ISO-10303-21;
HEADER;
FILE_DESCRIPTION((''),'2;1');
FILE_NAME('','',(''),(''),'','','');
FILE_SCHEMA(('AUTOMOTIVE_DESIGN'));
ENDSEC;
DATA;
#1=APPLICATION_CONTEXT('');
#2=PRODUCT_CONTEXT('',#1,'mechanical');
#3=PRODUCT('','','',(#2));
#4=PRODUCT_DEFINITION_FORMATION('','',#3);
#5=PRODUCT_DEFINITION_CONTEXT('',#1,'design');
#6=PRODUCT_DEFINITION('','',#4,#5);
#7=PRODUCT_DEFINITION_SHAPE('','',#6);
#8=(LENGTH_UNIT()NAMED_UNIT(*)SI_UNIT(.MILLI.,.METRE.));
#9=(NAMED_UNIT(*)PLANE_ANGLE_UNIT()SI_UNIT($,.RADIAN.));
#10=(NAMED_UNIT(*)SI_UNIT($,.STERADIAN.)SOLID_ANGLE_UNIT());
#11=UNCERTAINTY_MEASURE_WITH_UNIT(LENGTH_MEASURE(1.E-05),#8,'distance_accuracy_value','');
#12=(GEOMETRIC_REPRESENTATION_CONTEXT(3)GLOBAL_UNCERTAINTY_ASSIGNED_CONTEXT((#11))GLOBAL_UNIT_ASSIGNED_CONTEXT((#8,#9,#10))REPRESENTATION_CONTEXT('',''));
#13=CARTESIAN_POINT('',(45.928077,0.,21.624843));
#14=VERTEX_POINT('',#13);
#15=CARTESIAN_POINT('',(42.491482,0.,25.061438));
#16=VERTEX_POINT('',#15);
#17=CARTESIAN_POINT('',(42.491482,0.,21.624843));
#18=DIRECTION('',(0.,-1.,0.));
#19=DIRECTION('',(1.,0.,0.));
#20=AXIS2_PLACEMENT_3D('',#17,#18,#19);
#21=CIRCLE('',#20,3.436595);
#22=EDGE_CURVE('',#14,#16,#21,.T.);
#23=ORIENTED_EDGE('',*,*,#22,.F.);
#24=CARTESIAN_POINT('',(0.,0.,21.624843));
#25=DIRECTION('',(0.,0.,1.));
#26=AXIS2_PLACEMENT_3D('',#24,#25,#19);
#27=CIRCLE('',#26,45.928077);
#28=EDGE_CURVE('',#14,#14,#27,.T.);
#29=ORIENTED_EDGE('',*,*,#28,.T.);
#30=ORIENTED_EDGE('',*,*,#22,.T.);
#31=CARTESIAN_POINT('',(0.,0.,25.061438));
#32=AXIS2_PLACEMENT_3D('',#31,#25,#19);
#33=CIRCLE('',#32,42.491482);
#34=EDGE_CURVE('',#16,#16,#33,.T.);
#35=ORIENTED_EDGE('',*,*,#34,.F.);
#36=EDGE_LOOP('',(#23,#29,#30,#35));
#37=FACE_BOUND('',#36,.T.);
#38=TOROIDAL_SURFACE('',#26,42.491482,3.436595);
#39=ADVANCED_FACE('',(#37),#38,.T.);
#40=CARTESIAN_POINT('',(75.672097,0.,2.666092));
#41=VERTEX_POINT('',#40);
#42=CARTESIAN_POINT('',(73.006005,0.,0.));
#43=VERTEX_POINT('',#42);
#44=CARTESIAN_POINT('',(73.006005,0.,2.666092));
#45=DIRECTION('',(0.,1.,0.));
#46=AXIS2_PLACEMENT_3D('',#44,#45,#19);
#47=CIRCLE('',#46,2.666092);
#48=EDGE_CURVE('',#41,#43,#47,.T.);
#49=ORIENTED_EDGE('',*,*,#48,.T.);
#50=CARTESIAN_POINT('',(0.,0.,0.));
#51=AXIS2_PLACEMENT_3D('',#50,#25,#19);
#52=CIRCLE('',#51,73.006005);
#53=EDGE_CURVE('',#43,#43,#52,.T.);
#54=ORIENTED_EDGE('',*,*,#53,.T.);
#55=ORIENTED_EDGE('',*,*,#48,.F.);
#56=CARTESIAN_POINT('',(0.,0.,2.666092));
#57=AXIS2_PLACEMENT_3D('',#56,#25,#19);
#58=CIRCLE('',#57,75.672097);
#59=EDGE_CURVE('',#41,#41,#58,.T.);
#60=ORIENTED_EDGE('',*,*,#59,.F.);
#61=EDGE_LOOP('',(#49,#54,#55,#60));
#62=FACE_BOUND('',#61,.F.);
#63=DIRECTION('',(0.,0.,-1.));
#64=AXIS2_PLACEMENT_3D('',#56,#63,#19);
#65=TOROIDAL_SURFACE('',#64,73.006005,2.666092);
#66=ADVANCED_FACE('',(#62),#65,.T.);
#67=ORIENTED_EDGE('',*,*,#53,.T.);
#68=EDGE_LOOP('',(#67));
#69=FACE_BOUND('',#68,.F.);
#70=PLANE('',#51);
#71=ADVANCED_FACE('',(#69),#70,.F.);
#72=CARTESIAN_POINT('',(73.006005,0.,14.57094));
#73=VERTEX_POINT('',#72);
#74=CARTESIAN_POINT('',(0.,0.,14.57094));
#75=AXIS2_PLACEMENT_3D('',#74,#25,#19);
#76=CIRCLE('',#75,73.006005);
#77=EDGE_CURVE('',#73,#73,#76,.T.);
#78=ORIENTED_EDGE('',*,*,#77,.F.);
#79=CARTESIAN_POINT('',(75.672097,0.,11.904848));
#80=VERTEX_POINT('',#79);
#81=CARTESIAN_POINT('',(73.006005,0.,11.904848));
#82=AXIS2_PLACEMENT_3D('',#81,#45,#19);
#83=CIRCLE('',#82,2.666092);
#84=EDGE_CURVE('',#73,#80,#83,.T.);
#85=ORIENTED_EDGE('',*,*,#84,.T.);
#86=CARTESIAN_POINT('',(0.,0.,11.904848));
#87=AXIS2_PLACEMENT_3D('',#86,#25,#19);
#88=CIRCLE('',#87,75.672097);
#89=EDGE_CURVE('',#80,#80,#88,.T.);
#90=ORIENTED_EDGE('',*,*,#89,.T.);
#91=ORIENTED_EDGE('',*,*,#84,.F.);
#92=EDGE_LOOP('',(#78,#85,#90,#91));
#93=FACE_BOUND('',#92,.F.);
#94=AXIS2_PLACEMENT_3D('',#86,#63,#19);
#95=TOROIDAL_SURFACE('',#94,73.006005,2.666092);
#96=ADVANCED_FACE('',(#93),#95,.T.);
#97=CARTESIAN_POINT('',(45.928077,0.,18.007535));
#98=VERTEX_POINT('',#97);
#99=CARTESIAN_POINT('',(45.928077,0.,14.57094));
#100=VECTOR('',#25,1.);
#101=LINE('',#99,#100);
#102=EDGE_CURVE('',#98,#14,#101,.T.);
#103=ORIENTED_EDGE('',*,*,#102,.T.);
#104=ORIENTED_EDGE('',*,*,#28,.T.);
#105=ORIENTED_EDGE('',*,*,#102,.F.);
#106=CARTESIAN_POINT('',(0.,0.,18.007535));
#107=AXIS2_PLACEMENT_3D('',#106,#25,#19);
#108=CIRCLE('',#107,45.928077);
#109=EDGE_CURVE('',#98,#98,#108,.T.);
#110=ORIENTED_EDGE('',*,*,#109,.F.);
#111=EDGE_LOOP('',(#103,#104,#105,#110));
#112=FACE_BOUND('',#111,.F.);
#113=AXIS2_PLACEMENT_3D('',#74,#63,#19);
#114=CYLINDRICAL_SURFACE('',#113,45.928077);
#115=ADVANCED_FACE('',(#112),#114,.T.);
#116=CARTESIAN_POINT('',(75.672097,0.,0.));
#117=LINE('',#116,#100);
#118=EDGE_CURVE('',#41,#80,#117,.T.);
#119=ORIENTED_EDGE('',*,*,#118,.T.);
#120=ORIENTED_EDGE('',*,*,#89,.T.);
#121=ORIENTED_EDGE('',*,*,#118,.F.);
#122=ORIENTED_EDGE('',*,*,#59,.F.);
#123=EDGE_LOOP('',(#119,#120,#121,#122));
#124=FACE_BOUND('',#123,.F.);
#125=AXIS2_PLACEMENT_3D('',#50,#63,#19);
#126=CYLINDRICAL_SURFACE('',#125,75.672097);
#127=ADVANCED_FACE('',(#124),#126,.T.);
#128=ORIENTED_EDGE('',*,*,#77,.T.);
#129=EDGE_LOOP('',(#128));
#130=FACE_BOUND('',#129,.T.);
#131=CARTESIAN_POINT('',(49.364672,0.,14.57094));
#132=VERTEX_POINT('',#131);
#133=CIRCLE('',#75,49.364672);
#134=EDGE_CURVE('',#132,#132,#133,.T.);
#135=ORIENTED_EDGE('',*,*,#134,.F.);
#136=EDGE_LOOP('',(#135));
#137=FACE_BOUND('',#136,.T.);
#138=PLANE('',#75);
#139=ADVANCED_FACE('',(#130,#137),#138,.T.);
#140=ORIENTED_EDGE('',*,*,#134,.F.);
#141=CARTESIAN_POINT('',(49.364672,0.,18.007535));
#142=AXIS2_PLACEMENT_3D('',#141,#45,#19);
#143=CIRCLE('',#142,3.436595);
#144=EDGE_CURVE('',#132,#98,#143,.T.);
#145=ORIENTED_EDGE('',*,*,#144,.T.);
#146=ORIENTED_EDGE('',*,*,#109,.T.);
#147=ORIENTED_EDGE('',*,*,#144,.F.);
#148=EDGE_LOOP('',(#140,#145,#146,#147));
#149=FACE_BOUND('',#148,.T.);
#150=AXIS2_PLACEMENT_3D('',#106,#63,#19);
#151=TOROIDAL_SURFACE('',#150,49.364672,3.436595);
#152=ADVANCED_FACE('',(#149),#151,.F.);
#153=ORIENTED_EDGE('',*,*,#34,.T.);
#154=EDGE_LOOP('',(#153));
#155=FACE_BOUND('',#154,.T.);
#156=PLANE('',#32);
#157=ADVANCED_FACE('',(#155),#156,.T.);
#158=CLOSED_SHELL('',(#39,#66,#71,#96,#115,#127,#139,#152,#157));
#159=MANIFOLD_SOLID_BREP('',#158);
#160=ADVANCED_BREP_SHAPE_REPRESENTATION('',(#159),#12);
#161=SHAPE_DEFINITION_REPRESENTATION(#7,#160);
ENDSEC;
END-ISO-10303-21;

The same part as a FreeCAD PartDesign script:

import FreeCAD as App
import Part
import Sketcher
from FreeCAD import Vector
Q = App.Units.Quantity


def edges_at(feature, points):
    """Names of the edges that pass closest to the given points."""
    edges = feature.Shape.Edges
    near = lambda p: min(range(len(edges)), key=lambda i: edges[i].distToShape(Part.Vertex(*p))[0])
    return sorted({f"Edge{near(p) + 1}" for p in points})

doc = App.newDocument("Part")
body = doc.addObject("PartDesign::Body", "Body")

# Sketch on XY plane
sketch1 = body.newObject("Sketcher::SketchObject", "Sketch")
sketch1.AttachmentSupport = (doc.getObject("XY_Plane"), [""])
sketch1.MapMode = "FlatFace"
sketch1.addGeometry(Part.Circle(Vector(0, 0, 0), Vector(0, 0, 1), 75.672097), False)
sketch1.addConstraint([
    Sketcher.Constraint("Coincident", 0, 3, -1, 1),
    Sketcher.Constraint("Diameter", 0, Q("151.344194 mm")),
])
pad1 = body.newObject("PartDesign::Pad", "Pad")
pad1.Profile = sketch1
pad1.Length = 14.57094

# Sketch on XY plane
sketch2 = body.newObject("Sketcher::SketchObject", "Sketch001")
sketch2.AttachmentSupport = (doc.getObject("XY_Plane"), [""])
sketch2.MapMode = "FlatFace"
sketch2.AttachmentOffset = App.Placement(Vector(0, 0, 14.57094), App.Rotation())
sketch2.addGeometry(Part.Circle(Vector(0, 0, 0), Vector(0, 0, 1), 45.928077), False)
sketch2.addConstraint([
    Sketcher.Constraint("Coincident", 0, 3, -1, 1),
    Sketcher.Constraint("Diameter", 0, Q("91.856154 mm")),
])
pad2 = body.newObject("PartDesign::Pad", "Pad001")
pad2.Profile = sketch2
pad2.Length = 10.490498
doc.recompute()

fillet = body.newObject("PartDesign::Fillet", "Fillet")
fillet.Base = (pad2, edges_at(pad2, [(45.928, 0, 19.816), (-45.928, 0, 14.571), (-45.928, 0, 25.061)]))
fillet.Radius = 3.436595
doc.recompute()

fillet2 = body.newObject("PartDesign::Fillet", "Fillet001")
fillet2.Base = (fillet, edges_at(fillet, [(75.672, 0, 7.285), (-75.672, 0, 0), (-75.672, 0, 14.571)]))
fillet2.Radius = 2.666092

doc.recompute()
